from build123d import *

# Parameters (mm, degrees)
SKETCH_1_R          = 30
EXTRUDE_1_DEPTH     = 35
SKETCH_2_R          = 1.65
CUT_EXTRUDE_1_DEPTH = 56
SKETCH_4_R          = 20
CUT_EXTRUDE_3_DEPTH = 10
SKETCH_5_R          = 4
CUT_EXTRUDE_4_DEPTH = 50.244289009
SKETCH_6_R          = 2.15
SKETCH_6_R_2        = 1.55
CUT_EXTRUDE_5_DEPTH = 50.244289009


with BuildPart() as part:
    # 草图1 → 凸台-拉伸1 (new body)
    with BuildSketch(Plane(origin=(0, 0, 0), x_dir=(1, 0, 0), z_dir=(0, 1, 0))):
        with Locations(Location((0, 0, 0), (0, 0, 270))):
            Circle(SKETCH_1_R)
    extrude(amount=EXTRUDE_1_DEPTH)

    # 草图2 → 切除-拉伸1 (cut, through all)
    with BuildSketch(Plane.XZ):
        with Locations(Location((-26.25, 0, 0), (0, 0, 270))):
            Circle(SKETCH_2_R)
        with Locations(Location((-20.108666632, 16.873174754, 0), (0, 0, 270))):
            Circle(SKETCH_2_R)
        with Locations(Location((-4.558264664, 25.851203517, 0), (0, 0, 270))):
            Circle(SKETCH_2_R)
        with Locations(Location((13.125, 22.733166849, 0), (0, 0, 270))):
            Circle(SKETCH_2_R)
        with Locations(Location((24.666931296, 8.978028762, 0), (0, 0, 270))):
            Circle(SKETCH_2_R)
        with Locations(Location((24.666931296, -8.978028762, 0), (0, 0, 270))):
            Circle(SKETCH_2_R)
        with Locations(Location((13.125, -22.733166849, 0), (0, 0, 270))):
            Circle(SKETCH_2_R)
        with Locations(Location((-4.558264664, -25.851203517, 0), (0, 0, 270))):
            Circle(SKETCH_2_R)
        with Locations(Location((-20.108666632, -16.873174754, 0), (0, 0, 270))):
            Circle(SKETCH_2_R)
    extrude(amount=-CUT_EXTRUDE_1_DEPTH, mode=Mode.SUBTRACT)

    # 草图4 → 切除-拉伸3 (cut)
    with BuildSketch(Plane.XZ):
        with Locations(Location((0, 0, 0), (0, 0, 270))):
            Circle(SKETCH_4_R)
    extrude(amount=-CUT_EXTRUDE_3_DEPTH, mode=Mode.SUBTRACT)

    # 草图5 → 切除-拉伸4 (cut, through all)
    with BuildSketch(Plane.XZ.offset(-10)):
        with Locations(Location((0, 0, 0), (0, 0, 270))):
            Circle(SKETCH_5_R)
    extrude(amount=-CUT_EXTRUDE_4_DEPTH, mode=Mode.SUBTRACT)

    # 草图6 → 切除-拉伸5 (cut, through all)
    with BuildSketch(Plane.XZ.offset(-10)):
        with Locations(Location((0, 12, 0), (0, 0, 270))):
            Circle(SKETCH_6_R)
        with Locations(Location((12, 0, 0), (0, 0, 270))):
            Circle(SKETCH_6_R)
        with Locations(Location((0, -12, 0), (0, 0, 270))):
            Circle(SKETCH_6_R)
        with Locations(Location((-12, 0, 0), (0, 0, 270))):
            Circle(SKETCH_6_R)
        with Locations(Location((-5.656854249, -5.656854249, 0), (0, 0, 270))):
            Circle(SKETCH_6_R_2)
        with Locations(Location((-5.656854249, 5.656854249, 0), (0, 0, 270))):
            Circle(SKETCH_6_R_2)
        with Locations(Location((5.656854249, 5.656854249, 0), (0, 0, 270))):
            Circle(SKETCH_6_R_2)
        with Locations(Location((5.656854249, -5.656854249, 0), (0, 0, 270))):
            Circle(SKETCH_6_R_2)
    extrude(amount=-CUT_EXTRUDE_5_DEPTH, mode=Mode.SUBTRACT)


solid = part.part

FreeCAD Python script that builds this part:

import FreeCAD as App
import Part
import Sketcher
from FreeCAD import Vector

doc = App.newDocument("Part")
body = doc.addObject("PartDesign::Body", "Body")

# Sketch on XZ plane
sketch1 = body.newObject("Sketcher::SketchObject", "Sketch")
sketch1.AttachmentSupport = (doc.getObject("XZ_Plane"), [""])
sketch1.MapMode = "FlatFace"
sketch1.addGeometry(Part.Circle(Vector(0, 0, 0), Vector(0, 0, 1), 30), False)
sketch1.addConstraint([
    Sketcher.Constraint("Coincident", 0, 3, -1, 1),
    Sketcher.Constraint("Diameter", 0, 60.0),
])
pad1 = body.newObject("PartDesign::Pad", "Pad")
pad1.Profile = sketch1
pad1.Length = 35
pad1.Reversed = True

# Sketch on XZ plane
sketch2 = body.newObject("Sketcher::SketchObject", "Sketch001")
sketch2.AttachmentSupport = (doc.getObject("XZ_Plane"), [""])
sketch2.MapMode = "FlatFace"
sketch2.addGeometry([
    Part.Circle(Vector(-26.2, 0, 0), Vector(0, 0, 1), 1.6),  # 0
    Part.Circle(Vector(-20.1, 16.9, 0), Vector(0, 0, 1), 1.6),  # 1
    Part.Circle(Vector(-4.6, 25.9, 0), Vector(0, 0, 1), 1.6),  # 2
    Part.Circle(Vector(13.1, 22.7, 0), Vector(0, 0, 1), 1.6),  # 3
    Part.Circle(Vector(24.7, 9, 0), Vector(0, 0, 1), 1.6),  # 4
    Part.Circle(Vector(24.7, -9, 0), Vector(0, 0, 1), 1.6),  # 5
    Part.Circle(Vector(13.1, -22.7, 0), Vector(0, 0, 1), 1.6),  # 6
    Part.Circle(Vector(-4.6, -25.9, 0), Vector(0, 0, 1), 1.6),  # 7
    Part.Circle(Vector(-20.1, -16.9, 0), Vector(0, 0, 1), 1.6),  # 8
], False)
sketch2.addConstraint([
    Sketcher.Constraint("Equal", 0, 1),
    Sketcher.Constraint("Equal", 1, 2),
    Sketcher.Constraint("Equal", 2, 3),
    Sketcher.Constraint("Equal", 3, 4),
    Sketcher.Constraint("Equal", 4, 5),
    Sketcher.Constraint("Equal", 5, 6),
    Sketcher.Constraint("Equal", 6, 7),
    Sketcher.Constraint("Equal", 7, 8),
    Sketcher.Constraint("Symmetric", 4, 3, 5, 3, -1),
    Sketcher.Constraint("Symmetric", 3, 3, 6, 3, -1),
    Sketcher.Constraint("Symmetric", 2, 3, 7, 3, -1),
    Sketcher.Constraint("Symmetric", 1, 3, 8, 3, -1),
    Sketcher.Constraint("PointOnObject", 0, 3, -1),
    Sketcher.Constraint("Diameter", 0, 3.3),
    Sketcher.Constraint("DistanceX", 0, 3, -1, 1, 26.25),
    Sketcher.Constraint("DistanceX", -1, 1, 3, 3, 13.125),
    Sketcher.Constraint("DistanceX", 1, 3, 2, 3, 15.550402),
    Sketcher.Constraint("DistanceX", -1, 1, 4, 3, 24.666931),
    Sketcher.Constraint("DistanceY", -1, 1, 4, 3, 8.978029),
    Sketcher.Constraint("DistanceY", 1, 3, 2, 3, 8.978029),
    Sketcher.Constraint("DistanceY", 4, 3, 3, 3, 13.755138),
    Sketcher.Constraint("DistanceY", 6, 3, 1, 3, 39.606342),
    Sketcher.Constraint("DistanceX", 1, 3, -1, 1, 20.108667),
])
pocket1 = body.newObject("PartDesign::Pocket", "Pocket")
pocket1.Profile = sketch2
pocket1.Type = "ThroughAll"

# Sketch on XZ plane
sketch3 = body.newObject("Sketcher::SketchObject", "Sketch002")
sketch3.AttachmentSupport = (doc.getObject("XZ_Plane"), [""])
sketch3.MapMode = "FlatFace"
sketch3.addGeometry(Part.Circle(Vector(0, 0, 0), Vector(0, 0, 1), 20), False)
sketch3.addConstraint([
    Sketcher.Constraint("Coincident", 0, 3, -1, 1),
    Sketcher.Constraint("Diameter", 0, 40.0),
])
pocket2 = body.newObject("PartDesign::Pocket", "Pocket001")
pocket2.Profile = sketch3
pocket2.Length = 10

# Sketch on XZ plane
sketch4 = body.newObject("Sketcher::SketchObject", "Sketch003")
sketch4.AttachmentSupport = (doc.getObject("XZ_Plane"), [""])
sketch4.MapMode = "FlatFace"
sketch4.AttachmentOffset = App.Placement(Vector(0, 0, -10), App.Rotation())
sketch4.addGeometry(Part.Circle(Vector(0, 0, 0), Vector(0, 0, 1), 4), False)
sketch4.addConstraint([
    Sketcher.Constraint("Coincident", 0, 3, -1, 1),
    Sketcher.Constraint("Diameter", 0, 8.0),
])
pocket3 = body.newObject("PartDesign::Pocket", "Pocket002")
pocket3.Profile = sketch4
pocket3.Type = "ThroughAll"

# Sketch on XZ plane
sketch5 = body.newObject("Sketcher::SketchObject", "Sketch004")
sketch5.AttachmentSupport = (doc.getObject("XZ_Plane"), [""])
sketch5.MapMode = "FlatFace"
sketch5.AttachmentOffset = App.Placement(Vector(0, 0, -10), App.Rotation())
sketch5.addGeometry([
    Part.Circle(Vector(0, 12, 0), Vector(0, 0, 1), 2.1),  # 0
    Part.Circle(Vector(12, 0, 0), Vector(0, 0, 1), 2.1),  # 1
    Part.Circle(Vector(0, -12, 0), Vector(0, 0, 1), 2.1),  # 2
    Part.Circle(Vector(-12, 0, 0), Vector(0, 0, 1), 2.1),  # 3
    Part.Circle(Vector(-5.7, -5.7, 0), Vector(0, 0, 1), 1.6),  # 4
    Part.Circle(Vector(-5.7, 5.7, 0), Vector(0, 0, 1), 1.6),  # 5
    Part.Circle(Vector(5.7, 5.7, 0), Vector(0, 0, 1), 1.6),  # 6
    Part.Circle(Vector(5.7, -5.7, 0), Vector(0, 0, 1), 1.6),  # 7
], False)
sketch5.addConstraint([
    Sketcher.Constraint("Equal", 0, 1),
    Sketcher.Constraint("Equal", 1, 2),
    Sketcher.Constraint("Equal", 2, 3),
    Sketcher.Constraint("Equal", 4, 5),
    Sketcher.Constraint("Equal", 5, 6),
    Sketcher.Constraint("Equal", 6, 7),
    Sketcher.Constraint("Symmetric", 0, 3, 2, 3, -1, 1),
    Sketcher.Constraint("Symmetric", 1, 3, 3, 3, -1, 1),
    Sketcher.Constraint("Symmetric", 4, 3, 6, 3, -1, 1),
    Sketcher.Constraint("Symmetric", 5, 3, 7, 3, -1, 1),
    Sketcher.Constraint("Symmetric", 5, 3, 6, 3, -2),
    Sketcher.Constraint("PointOnObject", 0, 3, -2),
    Sketcher.Constraint("PointOnObject", 1, 3, -1),
    Sketcher.Constraint("Diameter", 0, 4.3),
    Sketcher.Constraint("Diameter", 4, 3.1),
    Sketcher.Constraint("DistanceY", -1, 1, 0, 3, 12.0),
    Sketcher.Constraint("DistanceX", -1, 1, 1, 3, 12.0),
    Sketcher.Constraint("DistanceY", 4, 3, 5, 3, 11.313708),
    Sketcher.Constraint("DistanceX", 5, 3, 6, 3, 11.313708),
])
pocket4 = body.newObject("PartDesign::Pocket", "Pocket003")
pocket4.Profile = sketch5
pocket4.Type = "ThroughAll"

doc.recompute()
